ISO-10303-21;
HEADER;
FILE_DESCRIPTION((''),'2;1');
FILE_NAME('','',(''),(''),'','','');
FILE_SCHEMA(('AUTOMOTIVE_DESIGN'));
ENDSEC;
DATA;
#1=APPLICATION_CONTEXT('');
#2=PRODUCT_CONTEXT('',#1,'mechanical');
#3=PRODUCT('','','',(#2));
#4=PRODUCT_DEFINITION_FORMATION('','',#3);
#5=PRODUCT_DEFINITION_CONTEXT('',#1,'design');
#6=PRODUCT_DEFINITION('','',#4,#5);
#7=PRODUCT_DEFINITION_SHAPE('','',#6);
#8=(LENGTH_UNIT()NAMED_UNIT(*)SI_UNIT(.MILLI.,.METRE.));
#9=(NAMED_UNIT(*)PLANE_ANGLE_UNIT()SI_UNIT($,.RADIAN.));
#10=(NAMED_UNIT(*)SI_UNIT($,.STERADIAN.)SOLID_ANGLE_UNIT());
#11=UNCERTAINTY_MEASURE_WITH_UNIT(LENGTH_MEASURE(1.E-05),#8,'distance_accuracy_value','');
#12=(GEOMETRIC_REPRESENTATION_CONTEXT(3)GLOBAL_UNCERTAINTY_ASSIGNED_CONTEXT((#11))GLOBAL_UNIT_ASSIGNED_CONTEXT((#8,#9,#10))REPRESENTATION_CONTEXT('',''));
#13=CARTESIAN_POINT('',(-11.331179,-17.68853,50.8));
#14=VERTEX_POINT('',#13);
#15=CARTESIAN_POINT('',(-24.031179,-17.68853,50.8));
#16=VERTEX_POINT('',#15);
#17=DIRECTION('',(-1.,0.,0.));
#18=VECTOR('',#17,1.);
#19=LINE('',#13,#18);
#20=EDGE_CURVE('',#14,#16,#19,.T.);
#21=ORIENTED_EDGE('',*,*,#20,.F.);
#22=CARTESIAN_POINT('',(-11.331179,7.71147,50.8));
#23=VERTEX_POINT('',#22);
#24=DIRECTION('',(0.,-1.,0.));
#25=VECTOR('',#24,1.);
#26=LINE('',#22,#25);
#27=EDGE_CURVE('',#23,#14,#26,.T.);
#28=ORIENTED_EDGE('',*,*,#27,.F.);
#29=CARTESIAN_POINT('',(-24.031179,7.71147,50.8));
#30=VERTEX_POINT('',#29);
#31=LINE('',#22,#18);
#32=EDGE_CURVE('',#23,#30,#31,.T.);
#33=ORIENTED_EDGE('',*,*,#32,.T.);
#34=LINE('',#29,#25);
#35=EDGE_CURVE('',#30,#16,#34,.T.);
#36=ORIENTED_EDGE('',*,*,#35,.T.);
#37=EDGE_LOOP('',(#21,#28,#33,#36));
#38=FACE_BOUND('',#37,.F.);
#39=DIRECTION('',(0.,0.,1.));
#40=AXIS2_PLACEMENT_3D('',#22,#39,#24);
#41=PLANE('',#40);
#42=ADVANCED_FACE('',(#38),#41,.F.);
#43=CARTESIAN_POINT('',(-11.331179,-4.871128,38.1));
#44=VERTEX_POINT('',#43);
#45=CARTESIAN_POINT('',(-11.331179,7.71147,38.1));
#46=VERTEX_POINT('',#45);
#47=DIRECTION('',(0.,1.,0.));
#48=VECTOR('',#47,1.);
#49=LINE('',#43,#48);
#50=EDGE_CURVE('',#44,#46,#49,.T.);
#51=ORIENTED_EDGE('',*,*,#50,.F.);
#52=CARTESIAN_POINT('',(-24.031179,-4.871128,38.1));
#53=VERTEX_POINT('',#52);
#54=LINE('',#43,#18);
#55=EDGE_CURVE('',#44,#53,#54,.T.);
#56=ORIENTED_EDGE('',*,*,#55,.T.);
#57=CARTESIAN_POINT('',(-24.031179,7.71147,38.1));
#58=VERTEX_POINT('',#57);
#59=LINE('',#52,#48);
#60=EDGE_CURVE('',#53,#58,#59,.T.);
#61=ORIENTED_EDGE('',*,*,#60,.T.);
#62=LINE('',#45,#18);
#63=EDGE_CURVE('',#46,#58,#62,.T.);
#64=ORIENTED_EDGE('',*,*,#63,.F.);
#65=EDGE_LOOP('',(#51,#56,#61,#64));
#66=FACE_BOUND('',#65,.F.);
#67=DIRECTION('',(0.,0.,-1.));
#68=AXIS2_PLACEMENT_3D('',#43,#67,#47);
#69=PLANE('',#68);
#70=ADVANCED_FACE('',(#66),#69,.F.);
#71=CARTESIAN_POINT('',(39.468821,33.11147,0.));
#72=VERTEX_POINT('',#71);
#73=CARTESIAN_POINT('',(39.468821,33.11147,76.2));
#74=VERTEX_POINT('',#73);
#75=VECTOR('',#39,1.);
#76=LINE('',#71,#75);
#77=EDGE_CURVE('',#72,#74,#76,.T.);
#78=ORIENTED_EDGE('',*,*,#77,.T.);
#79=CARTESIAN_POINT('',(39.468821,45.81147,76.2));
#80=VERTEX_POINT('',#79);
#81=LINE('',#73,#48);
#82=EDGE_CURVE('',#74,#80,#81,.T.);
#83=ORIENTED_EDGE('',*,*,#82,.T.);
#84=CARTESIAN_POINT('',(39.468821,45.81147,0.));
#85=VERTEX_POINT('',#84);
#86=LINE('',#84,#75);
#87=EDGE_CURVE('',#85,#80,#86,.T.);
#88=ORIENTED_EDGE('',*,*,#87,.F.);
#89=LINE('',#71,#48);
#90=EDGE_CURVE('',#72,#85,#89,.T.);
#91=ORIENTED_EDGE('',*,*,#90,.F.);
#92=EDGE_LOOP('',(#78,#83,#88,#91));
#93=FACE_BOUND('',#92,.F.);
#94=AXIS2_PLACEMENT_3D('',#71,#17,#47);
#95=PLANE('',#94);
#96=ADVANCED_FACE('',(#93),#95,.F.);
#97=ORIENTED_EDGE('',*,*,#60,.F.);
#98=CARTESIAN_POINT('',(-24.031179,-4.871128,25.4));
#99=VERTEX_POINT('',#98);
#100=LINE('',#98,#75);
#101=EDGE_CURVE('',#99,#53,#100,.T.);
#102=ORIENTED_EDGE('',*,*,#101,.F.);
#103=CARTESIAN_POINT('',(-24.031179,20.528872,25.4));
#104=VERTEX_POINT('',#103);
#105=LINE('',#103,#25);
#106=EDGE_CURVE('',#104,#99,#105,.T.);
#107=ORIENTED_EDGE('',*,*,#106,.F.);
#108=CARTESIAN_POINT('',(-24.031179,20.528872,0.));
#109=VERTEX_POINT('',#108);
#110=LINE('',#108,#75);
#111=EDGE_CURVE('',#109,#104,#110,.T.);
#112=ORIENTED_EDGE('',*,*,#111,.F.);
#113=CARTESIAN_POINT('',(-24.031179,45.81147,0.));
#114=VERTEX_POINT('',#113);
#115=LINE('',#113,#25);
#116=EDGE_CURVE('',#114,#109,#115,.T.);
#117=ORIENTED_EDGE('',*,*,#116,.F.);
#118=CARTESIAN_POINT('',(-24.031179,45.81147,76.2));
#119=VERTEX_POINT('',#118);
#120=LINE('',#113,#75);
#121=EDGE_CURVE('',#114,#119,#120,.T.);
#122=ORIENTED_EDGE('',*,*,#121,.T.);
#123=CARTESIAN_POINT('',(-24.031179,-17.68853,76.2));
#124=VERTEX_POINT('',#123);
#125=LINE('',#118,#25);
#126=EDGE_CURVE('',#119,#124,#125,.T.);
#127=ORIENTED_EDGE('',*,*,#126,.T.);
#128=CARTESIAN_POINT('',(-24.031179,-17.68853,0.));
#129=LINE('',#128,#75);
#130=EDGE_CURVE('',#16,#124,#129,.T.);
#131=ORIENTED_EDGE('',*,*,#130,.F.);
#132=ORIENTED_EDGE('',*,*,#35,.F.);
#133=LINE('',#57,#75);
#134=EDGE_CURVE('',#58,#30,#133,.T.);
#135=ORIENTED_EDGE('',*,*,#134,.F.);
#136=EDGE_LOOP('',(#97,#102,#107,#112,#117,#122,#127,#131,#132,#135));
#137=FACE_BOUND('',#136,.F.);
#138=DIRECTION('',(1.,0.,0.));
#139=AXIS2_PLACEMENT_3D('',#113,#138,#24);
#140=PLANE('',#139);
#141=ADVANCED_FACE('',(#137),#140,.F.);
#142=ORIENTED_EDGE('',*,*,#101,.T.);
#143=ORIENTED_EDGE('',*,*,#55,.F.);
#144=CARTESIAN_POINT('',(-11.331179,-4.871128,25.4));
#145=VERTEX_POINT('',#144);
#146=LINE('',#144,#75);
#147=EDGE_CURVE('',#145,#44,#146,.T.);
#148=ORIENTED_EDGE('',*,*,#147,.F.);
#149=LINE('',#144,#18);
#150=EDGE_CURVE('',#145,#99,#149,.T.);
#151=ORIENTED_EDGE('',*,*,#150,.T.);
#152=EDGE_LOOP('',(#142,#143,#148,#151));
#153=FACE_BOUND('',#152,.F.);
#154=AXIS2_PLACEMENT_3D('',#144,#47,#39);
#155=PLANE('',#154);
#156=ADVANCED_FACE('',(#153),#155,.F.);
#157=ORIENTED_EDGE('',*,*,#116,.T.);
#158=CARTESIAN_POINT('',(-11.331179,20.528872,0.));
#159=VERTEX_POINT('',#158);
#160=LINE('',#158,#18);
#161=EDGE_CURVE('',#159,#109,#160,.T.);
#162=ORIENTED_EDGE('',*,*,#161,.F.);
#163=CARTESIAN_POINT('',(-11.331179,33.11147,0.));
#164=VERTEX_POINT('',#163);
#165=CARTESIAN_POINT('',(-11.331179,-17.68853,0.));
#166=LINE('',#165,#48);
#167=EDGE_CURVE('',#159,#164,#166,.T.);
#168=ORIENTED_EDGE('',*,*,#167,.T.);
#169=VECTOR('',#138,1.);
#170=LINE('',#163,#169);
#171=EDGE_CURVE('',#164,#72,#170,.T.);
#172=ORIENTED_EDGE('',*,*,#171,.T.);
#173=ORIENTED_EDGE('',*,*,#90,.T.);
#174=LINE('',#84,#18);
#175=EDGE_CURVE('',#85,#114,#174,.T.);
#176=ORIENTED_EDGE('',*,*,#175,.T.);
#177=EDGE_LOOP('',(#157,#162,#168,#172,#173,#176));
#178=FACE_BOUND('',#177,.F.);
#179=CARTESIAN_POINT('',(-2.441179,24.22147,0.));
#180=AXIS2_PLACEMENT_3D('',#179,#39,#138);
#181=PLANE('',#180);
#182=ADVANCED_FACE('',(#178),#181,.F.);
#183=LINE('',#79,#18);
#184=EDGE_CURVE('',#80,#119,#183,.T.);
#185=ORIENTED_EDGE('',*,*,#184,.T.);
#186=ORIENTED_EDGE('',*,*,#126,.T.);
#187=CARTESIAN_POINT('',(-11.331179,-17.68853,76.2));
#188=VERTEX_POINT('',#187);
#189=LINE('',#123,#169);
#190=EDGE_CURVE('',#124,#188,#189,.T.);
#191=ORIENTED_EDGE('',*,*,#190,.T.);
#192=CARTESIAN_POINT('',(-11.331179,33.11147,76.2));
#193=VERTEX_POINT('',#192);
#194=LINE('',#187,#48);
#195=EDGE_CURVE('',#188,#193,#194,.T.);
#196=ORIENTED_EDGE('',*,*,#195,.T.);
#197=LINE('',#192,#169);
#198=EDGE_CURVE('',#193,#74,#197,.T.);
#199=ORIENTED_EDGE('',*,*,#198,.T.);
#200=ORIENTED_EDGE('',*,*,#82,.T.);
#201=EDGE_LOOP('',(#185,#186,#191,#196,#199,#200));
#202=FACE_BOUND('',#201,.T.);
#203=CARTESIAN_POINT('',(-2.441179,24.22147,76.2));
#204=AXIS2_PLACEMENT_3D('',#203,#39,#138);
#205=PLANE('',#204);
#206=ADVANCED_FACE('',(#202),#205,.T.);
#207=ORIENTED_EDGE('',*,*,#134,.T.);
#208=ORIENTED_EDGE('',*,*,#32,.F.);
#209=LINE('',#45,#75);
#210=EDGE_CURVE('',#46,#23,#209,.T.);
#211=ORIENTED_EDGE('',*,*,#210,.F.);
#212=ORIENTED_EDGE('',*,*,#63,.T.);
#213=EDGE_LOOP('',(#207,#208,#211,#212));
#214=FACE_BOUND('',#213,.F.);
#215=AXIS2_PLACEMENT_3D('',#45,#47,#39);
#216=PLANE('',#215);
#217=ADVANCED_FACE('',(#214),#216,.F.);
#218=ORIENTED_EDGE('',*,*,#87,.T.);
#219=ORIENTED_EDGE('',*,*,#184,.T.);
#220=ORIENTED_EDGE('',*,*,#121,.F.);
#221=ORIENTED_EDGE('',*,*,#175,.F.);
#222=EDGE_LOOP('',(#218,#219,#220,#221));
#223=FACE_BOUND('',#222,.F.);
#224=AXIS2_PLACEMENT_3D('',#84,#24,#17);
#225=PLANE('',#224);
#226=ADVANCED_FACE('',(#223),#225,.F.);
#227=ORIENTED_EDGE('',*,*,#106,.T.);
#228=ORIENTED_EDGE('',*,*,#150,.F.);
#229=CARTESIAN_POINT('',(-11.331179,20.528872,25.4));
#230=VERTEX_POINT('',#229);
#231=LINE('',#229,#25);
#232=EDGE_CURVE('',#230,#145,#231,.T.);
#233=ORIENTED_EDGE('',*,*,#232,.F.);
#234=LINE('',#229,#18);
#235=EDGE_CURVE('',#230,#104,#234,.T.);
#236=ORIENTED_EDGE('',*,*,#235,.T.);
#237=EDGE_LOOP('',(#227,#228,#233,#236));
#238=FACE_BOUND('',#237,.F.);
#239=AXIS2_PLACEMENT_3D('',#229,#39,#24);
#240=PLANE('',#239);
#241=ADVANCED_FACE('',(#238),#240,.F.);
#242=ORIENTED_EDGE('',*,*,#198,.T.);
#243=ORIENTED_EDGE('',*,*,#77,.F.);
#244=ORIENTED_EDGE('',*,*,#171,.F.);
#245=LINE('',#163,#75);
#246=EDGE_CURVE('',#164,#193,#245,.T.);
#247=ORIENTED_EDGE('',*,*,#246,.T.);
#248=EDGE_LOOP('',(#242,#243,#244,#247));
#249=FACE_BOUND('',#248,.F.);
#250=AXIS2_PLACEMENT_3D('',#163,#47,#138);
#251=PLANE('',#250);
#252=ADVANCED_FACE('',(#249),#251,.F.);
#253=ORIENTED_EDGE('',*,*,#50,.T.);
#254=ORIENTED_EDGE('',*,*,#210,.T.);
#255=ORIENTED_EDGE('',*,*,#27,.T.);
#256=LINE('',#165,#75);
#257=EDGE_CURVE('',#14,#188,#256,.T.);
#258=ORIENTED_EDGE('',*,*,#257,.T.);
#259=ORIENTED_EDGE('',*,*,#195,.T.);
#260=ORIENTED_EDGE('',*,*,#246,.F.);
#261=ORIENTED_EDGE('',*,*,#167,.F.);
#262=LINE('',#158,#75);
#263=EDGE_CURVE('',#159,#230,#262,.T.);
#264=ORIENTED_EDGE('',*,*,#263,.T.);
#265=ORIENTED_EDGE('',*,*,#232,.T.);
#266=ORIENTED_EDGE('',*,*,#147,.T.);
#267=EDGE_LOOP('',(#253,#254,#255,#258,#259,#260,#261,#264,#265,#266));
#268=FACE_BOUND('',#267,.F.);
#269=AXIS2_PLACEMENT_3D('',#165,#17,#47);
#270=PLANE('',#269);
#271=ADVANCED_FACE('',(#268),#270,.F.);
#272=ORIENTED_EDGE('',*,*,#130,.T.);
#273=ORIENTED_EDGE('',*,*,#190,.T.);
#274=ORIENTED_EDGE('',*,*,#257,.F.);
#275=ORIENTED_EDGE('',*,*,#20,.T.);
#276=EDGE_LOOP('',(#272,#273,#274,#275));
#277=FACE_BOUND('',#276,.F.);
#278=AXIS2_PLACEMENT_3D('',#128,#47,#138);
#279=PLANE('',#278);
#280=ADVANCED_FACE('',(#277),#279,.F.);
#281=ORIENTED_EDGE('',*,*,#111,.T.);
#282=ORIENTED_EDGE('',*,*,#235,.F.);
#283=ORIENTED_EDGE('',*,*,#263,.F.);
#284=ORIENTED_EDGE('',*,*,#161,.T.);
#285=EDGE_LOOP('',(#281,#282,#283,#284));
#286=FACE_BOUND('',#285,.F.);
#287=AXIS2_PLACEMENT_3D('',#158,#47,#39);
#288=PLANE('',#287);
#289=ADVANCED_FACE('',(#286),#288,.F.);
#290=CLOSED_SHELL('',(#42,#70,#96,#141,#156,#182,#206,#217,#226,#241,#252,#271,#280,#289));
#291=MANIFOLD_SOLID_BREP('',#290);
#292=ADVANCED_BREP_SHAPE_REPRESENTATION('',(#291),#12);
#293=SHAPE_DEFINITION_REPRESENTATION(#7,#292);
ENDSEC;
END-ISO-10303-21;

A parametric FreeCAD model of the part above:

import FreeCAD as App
import Part
import Sketcher
Q = App.Units.Quantity

doc = App.newDocument("Part")
body = doc.addObject("PartDesign::Body", "Body")

# Sketch on XY plane
sketch1 = doc.addObject("Sketcher::SketchObject", "Sketch")
body.addObject(sketch1)
sketch1.AttachmentSupport = (doc.XY_Plane, [""])
sketch1.MapMode = "FlatFace"
sketch1.addGeometry([
    Part.LineSegment(App.Vector(-11, 33, 0), App.Vector(39, 33, 0)),  # 0
    Part.LineSegment(App.Vector(39, 33, 0), App.Vector(39, 46, 0)),  # 1
    Part.LineSegment(App.Vector(39, 46, 0), App.Vector(-24, 46, 0)),  # 2
    Part.LineSegment(App.Vector(-24, 46, 0), App.Vector(-24, -18, 0)),  # 3
    Part.LineSegment(App.Vector(-24, -18, 0), App.Vector(-11, -18, 0)),  # 4
    Part.LineSegment(App.Vector(-11, -18, 0), App.Vector(-11, 33, 0)),  # 5
], False)
sketch1.addConstraint([
    Sketcher.Constraint("Coincident", 0, 2, 1, 1),
    Sketcher.Constraint("Coincident", 1, 2, 2, 1),
    Sketcher.Constraint("Coincident", 2, 2, 3, 1),
    Sketcher.Constraint("Coincident", 3, 2, 4, 1),
    Sketcher.Constraint("Coincident", 4, 2, 5, 1),
    Sketcher.Constraint("Coincident", 5, 2, 0, 1),
    Sketcher.Constraint("Horizontal", 0),
    Sketcher.Constraint("Vertical", 1),
    Sketcher.Constraint("Horizontal", 2),
    Sketcher.Constraint("Vertical", 3),
    Sketcher.Constraint("Horizontal", 4),
    Sketcher.Constraint("Vertical", 5),
    Sketcher.Constraint("Equal", 4, 1),
    Sketcher.Constraint("Equal", 2, 3),
    Sketcher.Constraint("DistanceX", 0, 1, 0, 2, Q("2 in")),
    Sketcher.Constraint("DistanceX", 2, 2, 2, 1, Q("2.5 in")),
    Sketcher.Constraint("DistanceX", -1, 1, 0, 2, Q("39.468821 mm")),
    Sketcher.Constraint("DistanceY", -1, 1, 0, 2, Q("33.11147 mm")),
])
pad1 = doc.addObject("PartDesign::Pad", "Pad")
body.addObject(pad1)
pad1.Profile = sketch1
pad1.Length = Q("3 in")

# Sketch on YZ plane
sketch2 = doc.addObject("Sketcher::SketchObject", "Sketch001")
body.addObject(sketch2)
sketch2.AttachmentSupport = (doc.YZ_Plane, [""])
sketch2.MapMode = "FlatFace"
sketch2.AttachmentOffset = App.Placement(App.Vector(0, 0, -11.331179), App.Rotation())
sketch2.addGeometry([
    Part.LineSegment(App.Vector(-18, 51, 0), App.Vector(-18, 0, 0)),  # 0
    Part.LineSegment(App.Vector(-18, 0, 0), App.Vector(21, 0, 0)),  # 1
    Part.LineSegment(App.Vector(21, 0, 0), App.Vector(21, 25, 0)),  # 2
    Part.LineSegment(App.Vector(21, 25, 0), App.Vector(-5, 25, 0)),  # 3
    Part.LineSegment(App.Vector(-5, 25, 0), App.Vector(-5, 38, 0)),  # 4
    Part.LineSegment(App.Vector(-5, 38, 0), App.Vector(8, 38, 0)),  # 5
    Part.LineSegment(App.Vector(8, 38, 0), App.Vector(8, 51, 0)),  # 6
    Part.LineSegment(App.Vector(8, 51, 0), App.Vector(-18, 51, 0)),  # 7
], False)
sketch2.addConstraint([
    Sketcher.Constraint("Coincident", 0, 2, 1, 1),
    Sketcher.Constraint("Coincident", 1, 2, 2, 1),
    Sketcher.Constraint("Coincident", 2, 2, 3, 1),
    Sketcher.Constraint("Coincident", 3, 2, 4, 1),
    Sketcher.Constraint("Coincident", 4, 2, 5, 1),
    Sketcher.Constraint("Coincident", 5, 2, 6, 1),
    Sketcher.Constraint("Coincident", 6, 2, 7, 1),
    Sketcher.Constraint("Coincident", 7, 2, 0, 1),
    Sketcher.Constraint("Vertical", 0),
    Sketcher.Constraint("Horizontal", 1),
    Sketcher.Constraint("Vertical", 2),
    Sketcher.Constraint("Horizontal", 3),
    Sketcher.Constraint("Vertical", 4),
    Sketcher.Constraint("Horizontal", 5),
    Sketcher.Constraint("Vertical", 6),
    Sketcher.Constraint("Horizontal", 7),
    Sketcher.Constraint("PointOnObject", 0, 2, -1),
    Sketcher.Constraint("Equal", 3, 7),
    Sketcher.Constraint("Equal", 7, 2),
    Sketcher.Constraint("Equal", 4, 6),
    Sketcher.Constraint("DistanceX", 3, 2, 3, 1, Q("1 in")),
    Sketcher.Constraint("DistanceY", 0, 2, 0, 1, Q("2 in")),
    Sketcher.Constraint("DistanceX", 5, 1, 5, 2, Q("12.582598 mm")),
    Sketcher.Constraint("DistanceX", 0, 2, -1, 1, Q("17.68853 mm")),
])
pocket1 = doc.addObject("PartDesign::Pocket", "Pocket")
body.addObject(pocket1)
pocket1.Profile = sketch2
pocket1.Length = Q("0.5 in")

doc.recompute()
